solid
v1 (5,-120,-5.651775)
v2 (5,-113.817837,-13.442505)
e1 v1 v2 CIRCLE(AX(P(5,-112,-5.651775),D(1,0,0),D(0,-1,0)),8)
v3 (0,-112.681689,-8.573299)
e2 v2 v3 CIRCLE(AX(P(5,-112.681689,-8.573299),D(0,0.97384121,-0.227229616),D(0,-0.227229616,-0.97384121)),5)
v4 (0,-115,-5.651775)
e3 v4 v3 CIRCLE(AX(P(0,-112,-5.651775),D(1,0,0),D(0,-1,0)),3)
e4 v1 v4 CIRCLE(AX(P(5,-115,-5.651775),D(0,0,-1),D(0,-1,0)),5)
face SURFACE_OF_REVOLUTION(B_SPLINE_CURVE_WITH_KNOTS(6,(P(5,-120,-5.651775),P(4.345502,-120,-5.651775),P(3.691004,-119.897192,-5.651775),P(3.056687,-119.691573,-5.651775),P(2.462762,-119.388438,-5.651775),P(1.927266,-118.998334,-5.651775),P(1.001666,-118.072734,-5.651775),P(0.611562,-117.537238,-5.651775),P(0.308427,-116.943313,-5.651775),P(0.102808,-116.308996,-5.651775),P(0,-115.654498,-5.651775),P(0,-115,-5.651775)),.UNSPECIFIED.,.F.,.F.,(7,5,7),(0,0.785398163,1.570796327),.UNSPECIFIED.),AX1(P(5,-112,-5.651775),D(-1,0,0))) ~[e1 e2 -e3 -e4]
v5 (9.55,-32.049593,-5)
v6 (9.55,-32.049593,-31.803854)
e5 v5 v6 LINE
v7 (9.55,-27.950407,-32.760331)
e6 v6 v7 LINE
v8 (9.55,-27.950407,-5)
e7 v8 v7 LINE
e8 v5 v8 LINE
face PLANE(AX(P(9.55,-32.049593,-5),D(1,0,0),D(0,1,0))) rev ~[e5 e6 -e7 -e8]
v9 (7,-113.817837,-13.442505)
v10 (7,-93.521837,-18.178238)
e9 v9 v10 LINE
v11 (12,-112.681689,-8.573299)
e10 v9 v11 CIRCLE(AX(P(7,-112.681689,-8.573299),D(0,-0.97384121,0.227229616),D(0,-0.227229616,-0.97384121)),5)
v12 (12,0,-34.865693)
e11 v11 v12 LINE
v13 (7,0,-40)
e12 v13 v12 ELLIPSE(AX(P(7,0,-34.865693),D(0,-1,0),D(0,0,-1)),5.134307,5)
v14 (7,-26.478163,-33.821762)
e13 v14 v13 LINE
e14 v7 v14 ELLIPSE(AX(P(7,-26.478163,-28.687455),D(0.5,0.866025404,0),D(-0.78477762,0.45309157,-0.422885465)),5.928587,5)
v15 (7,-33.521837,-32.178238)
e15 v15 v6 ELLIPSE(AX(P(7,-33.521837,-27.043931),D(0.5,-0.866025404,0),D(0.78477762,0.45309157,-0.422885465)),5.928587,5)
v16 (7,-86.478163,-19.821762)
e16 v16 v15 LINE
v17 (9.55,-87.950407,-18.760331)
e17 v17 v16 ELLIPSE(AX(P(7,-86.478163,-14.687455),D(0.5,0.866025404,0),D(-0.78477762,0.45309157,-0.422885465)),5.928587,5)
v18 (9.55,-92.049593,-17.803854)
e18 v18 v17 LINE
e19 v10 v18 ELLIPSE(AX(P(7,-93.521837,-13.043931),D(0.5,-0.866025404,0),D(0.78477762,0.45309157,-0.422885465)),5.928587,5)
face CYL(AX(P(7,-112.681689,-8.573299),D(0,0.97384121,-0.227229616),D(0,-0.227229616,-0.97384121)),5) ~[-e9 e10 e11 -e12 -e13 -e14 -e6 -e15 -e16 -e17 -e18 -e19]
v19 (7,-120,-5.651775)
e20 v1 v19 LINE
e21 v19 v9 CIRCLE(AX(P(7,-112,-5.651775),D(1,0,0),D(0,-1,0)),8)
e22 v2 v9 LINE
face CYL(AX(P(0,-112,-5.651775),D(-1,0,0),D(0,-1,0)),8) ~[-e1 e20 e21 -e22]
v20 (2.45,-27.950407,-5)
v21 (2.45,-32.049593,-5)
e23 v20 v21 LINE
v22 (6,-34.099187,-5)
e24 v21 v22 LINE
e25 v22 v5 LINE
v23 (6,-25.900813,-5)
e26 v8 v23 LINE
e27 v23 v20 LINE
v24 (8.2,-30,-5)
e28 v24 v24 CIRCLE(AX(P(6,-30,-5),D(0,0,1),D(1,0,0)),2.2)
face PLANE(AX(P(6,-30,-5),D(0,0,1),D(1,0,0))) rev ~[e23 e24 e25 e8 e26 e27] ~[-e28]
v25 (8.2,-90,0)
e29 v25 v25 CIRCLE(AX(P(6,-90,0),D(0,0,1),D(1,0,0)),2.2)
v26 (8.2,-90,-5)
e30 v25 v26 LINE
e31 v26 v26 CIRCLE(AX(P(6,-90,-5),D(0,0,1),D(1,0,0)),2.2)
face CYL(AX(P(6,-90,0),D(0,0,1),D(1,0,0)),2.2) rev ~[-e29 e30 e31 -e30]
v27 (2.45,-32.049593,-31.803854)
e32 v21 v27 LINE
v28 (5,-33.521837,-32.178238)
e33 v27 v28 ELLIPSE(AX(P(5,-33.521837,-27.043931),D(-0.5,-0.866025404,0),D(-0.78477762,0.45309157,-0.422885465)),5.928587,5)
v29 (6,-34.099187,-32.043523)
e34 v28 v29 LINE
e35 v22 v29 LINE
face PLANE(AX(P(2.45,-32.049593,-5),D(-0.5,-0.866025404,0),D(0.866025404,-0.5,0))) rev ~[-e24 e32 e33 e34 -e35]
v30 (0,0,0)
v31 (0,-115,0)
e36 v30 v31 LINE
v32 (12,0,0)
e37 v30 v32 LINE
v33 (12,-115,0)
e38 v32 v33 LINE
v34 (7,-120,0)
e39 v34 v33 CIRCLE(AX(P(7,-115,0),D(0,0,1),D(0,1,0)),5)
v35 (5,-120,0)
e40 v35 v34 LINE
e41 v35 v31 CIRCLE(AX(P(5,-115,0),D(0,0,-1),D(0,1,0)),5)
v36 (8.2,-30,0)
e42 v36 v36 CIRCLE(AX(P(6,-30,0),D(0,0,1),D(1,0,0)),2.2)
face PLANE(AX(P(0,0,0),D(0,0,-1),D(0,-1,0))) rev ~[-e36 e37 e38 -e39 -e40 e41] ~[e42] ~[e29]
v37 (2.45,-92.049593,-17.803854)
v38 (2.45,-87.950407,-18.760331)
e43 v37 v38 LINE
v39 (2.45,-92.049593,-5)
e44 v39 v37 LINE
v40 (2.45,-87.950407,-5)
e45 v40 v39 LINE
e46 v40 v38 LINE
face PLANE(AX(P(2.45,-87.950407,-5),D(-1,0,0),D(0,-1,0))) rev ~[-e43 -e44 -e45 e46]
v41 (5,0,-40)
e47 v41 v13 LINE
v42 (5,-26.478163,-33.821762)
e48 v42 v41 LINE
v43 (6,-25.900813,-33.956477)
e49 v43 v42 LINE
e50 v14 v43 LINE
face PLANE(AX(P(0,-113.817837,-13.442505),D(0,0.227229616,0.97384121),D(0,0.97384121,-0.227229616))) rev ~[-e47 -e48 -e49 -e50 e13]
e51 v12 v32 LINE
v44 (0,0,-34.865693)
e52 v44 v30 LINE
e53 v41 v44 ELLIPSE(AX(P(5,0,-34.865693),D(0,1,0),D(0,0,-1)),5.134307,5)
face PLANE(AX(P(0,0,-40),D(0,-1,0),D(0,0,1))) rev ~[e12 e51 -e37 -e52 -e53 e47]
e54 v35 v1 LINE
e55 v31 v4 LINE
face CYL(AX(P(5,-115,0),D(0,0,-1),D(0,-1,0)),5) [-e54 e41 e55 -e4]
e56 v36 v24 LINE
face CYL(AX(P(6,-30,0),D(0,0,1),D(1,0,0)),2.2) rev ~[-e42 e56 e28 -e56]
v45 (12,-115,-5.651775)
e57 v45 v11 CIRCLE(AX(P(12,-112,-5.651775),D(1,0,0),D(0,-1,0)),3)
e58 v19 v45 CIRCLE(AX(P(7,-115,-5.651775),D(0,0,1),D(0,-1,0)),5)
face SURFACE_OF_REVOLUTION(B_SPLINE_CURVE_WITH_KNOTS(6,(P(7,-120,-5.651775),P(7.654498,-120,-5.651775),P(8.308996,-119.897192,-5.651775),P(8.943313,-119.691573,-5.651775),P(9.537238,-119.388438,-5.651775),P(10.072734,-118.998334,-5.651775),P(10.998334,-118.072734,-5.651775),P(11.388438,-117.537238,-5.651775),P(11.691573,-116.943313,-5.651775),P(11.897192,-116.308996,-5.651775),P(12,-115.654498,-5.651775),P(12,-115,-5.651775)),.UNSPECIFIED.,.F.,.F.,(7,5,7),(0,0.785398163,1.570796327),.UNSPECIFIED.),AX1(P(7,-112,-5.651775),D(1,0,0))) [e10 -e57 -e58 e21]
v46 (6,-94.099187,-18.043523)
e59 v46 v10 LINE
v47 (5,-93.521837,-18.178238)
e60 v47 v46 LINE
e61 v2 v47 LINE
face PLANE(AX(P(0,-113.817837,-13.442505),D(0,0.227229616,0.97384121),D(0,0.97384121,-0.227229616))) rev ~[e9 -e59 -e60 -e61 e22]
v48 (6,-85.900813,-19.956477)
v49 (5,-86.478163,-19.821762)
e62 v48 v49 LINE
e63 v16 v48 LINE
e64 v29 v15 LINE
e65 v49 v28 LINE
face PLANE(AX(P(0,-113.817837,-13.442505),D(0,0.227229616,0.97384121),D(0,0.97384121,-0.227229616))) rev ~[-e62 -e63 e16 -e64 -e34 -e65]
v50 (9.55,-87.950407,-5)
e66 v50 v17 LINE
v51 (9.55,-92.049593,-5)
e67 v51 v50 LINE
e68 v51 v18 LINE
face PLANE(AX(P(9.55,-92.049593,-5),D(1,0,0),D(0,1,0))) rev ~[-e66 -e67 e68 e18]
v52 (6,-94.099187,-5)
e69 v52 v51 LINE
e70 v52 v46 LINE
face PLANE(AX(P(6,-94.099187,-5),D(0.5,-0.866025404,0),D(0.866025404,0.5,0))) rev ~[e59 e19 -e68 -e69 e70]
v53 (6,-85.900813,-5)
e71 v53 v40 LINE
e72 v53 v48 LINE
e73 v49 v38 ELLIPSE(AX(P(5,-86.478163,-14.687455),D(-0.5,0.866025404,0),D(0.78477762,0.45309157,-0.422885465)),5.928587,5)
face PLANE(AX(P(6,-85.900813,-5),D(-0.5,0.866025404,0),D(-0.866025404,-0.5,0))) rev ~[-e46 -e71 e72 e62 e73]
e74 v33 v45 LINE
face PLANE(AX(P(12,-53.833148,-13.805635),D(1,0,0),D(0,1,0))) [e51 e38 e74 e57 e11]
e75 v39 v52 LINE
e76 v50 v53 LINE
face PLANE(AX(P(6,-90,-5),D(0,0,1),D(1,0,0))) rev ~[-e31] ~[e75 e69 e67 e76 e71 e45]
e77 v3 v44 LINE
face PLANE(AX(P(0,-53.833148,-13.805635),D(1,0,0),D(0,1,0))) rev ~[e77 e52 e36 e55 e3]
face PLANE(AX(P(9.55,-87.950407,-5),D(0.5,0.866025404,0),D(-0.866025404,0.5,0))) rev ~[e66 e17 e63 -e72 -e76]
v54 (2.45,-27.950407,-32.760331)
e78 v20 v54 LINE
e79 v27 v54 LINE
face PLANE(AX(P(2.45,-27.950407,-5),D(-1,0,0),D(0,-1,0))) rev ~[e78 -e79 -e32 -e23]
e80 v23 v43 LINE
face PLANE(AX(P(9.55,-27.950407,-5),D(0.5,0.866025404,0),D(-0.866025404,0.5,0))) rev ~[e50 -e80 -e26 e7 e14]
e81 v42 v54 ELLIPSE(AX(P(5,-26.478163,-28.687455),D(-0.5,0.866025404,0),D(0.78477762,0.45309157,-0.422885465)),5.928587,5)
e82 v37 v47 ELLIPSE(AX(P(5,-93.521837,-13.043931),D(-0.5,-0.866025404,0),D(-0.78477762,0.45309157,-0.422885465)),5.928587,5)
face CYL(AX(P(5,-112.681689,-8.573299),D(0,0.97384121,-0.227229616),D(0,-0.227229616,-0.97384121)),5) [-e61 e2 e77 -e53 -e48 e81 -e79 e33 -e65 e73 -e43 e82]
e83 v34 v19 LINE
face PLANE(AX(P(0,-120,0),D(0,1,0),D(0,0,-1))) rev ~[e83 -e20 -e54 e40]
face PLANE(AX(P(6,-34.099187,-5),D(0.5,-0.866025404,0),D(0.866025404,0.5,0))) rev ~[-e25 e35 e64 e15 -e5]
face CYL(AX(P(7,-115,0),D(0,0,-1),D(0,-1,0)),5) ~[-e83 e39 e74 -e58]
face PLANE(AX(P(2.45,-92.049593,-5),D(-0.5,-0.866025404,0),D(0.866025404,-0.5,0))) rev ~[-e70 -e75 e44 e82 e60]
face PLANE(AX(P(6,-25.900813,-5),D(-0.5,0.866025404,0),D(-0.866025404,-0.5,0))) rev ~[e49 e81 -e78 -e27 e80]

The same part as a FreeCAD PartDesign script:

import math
import FreeCAD as App
import Part
import Sketcher
Q = App.Units.Quantity


def edges_at(feature, points):
    """Names of the edges that pass closest to the given points."""
    edges = feature.Shape.Edges
    near = lambda p: min(range(len(edges)), key=lambda i: edges[i].distToShape(Part.Vertex(*p))[0])
    return sorted({f"Edge{near(p) + 1}" for p in points})

doc = App.newDocument("Part")
body = doc.addObject("PartDesign::Body", "Body")

sketch1 = body.newObject("Sketcher::SketchObject", "Sketch")
sketch1.AttachmentSupport = (doc.getObject("YZ_Plane"), [""])
sketch1.MapMode = "FlatFace"
sketch1.addGeometry([
    Part.LineSegment(App.Vector(0, -40, 0), App.Vector(0, 0, 0)),
    Part.LineSegment(App.Vector(0, 0, 0), App.Vector(-120, 0, 0)),
    Part.LineSegment(App.Vector(-120, 0, 0), App.Vector(-120, -5.651775, 0)),
    Part.ArcOfCircle(Part.Circle(App.Vector(-112, -5.651775, 0), App.Vector(0, 0, 1), 8), math.radians(180), math.radians(256.865978)),
    Part.LineSegment(App.Vector(-113.817837, -13.442505, 0), App.Vector(0, -40, 0)),
], False)
sketch1.addConstraint([
    Sketcher.Constraint("Coincident", 0, 2, 1, 1),
    Sketcher.Constraint("Coincident", 1, 2, 2, 1),
    Sketcher.Constraint("Tangent", 2, 2, 3, 1),
    Sketcher.Constraint("Tangent", 3, 2, 4, 1),
    Sketcher.Constraint("Coincident", 4, 2, 0, 1),
    Sketcher.Constraint("Vertical", 0),
    Sketcher.Constraint("Horizontal", 1),
    Sketcher.Constraint("Vertical", 2),
    Sketcher.Constraint("Coincident", 0, 2, -1, 1),
    Sketcher.Constraint("Radius", 3, Q("8 mm")),
    Sketcher.Constraint("DistanceX", 1, 2, 1, 1, Q("120 mm")),
    Sketcher.Constraint("DistanceY", 0, 1, 0, 2, Q("40 mm")),
    Sketcher.Constraint("Distance", 4, Q("116.875149 mm")),
])
pad1 = body.newObject("PartDesign::Pad", "Pad")
pad1.Profile = sketch1
pad1.Length = 12
doc.recompute()

fillet = body.newObject("PartDesign::Fillet", "Fillet")
fillet.Base = (pad1, edges_at(pad1, [(0, -56.909, -26.721), (12, -56.909, -26.721)]))
fillet.Radius = 5

sketch2 = body.newObject("Sketcher::SketchObject", "Sketch001")
sketch2.AttachmentSupport = (doc.getObject("XY_Plane"), [""])
sketch2.MapMode = "FlatFace"
sketch2.addGeometry([
    Part.Circle(App.Vector(6, -30, 0), App.Vector(0, 0, 1), 2.2),
    Part.Circle(App.Vector(6, -90, 0), App.Vector(0, 0, 1), 2.2),
], False)
sketch2.addConstraint([
    Sketcher.Constraint("Equal", 0, 1),
    Sketcher.Constraint("Vertical", 0, 3, 1, 3),
    Sketcher.Constraint("Diameter", 0, Q("4.4 mm")),
    Sketcher.Constraint("DistanceX", -1, 1, 0, 3, Q("6 mm")),
    Sketcher.Constraint("DistanceY", 0, 3, -1, 1, Q("30 mm")),
    Sketcher.Constraint("DistanceY", 1, 3, -1, 1, Q("90 mm")),
])
pocket1 = body.newObject("PartDesign::Pocket", "Pocket")
pocket1.Profile = sketch2
pocket1.Type = "ThroughAll"

sketch3 = body.newObject("Sketcher::SketchObject", "Sketch002")
sketch3.AttachmentSupport = (doc.getObject("XY_Plane"), [""])
sketch3.MapMode = "FlatFace"
sketch3.AttachmentOffset = App.Placement(App.Vector(0, 0, -5), App.Rotation())
sketch3.addGeometry([
    Part.LineSegment(App.Vector(2.45, -32.049593, 0), App.Vector(6, -34.099187, 0)),
    Part.LineSegment(App.Vector(6, -34.099187, 0), App.Vector(9.55, -32.049593, 0)),
    Part.LineSegment(App.Vector(9.55, -32.049593, 0), App.Vector(9.55, -27.950407, 0)),
    Part.LineSegment(App.Vector(9.55, -27.950407, 0), App.Vector(6, -25.900813, 0)),
    Part.LineSegment(App.Vector(6, -25.900813, 0), App.Vector(2.45, -27.950407, 0)),
    Part.LineSegment(App.Vector(2.45, -27.950407, 0), App.Vector(2.45, -32.049593, 0)),
    Part.LineSegment(App.Vector(2.45, -92.049593, 0), App.Vector(6, -94.099187, 0)),
    Part.LineSegment(App.Vector(6, -94.099187, 0), App.Vector(9.55, -92.049593, 0)),
    Part.LineSegment(App.Vector(9.55, -92.049593, 0), App.Vector(9.55, -87.950407, 0)),
    Part.LineSegment(App.Vector(9.55, -87.950407, 0), App.Vector(6, -85.900813, 0)),
    Part.LineSegment(App.Vector(6, -85.900813, 0), App.Vector(2.45, -87.950407, 0)),
    Part.LineSegment(App.Vector(2.45, -87.950407, 0), App.Vector(2.45, -92.049593, 0)),
], False)
sketch3.addConstraint([
    Sketcher.Constraint("Coincident", 0, 2, 1, 1),
    Sketcher.Constraint("Coincident", 1, 2, 2, 1),
    Sketcher.Constraint("Coincident", 2, 2, 3, 1),
    Sketcher.Constraint("Coincident", 3, 2, 4, 1),
    Sketcher.Constraint("Coincident", 4, 2, 5, 1),
    Sketcher.Constraint("Coincident", 5, 2, 0, 1),
    Sketcher.Constraint("Coincident", 6, 2, 7, 1),
    Sketcher.Constraint("Coincident", 7, 2, 8, 1),
    Sketcher.Constraint("Coincident", 8, 2, 9, 1),
    Sketcher.Constraint("Coincident", 9, 2, 10, 1),
    Sketcher.Constraint("Coincident", 10, 2, 11, 1),
    Sketcher.Constraint("Coincident", 11, 2, 6, 1),
    Sketcher.Constraint("Vertical", 2),
    Sketcher.Constraint("Vertical", 5),
    Sketcher.Constraint("Vertical", 8),
    Sketcher.Constraint("Vertical", 11),
    Sketcher.Constraint("Parallel", 0, 3),
    Sketcher.Constraint("Parallel", 1, 4),
    Sketcher.Constraint("Parallel", 3, 6),
    Sketcher.Constraint("Parallel", 4, 7),
    Sketcher.Constraint("Parallel", 6, 9),
    Sketcher.Constraint("Parallel", 7, 10),
    Sketcher.Constraint("Horizontal", 2, 2, 4, 2),
    Sketcher.Constraint("Horizontal", 1, 2, 5, 2),
    Sketcher.Constraint("Horizontal", 8, 2, 10, 2),
    Sketcher.Constraint("Horizontal", 7, 2, 11, 2),
    Sketcher.Constraint("Vertical", 0, 2, 3, 2),
    Sketcher.Constraint("Vertical", 3, 2, 6, 2),
    Sketcher.Constraint("Vertical", 2, 2, 7, 2),
    Sketcher.Constraint("Equal", 5, 8),
    Sketcher.Constraint("Angle", 0, Q("-30 deg")),
    Sketcher.Constraint("DistanceX", -1, 1, 0, 2, Q("6 mm")),
    Sketcher.Constraint("DistanceY", 6, 2, 0, 2, Q("60 mm")),
    Sketcher.Constraint("DistanceX", 4, 2, 2, 2, Q("7.1 mm")),
    Sketcher.Constraint("DistanceY", 2, 1, 2, 2, Q("4.099187 mm")),
    Sketcher.Constraint("DistanceY", 0, 2, -1, 1, Q("34.099187 mm")),
])
pocket2 = body.newObject("PartDesign::Pocket", "Pocket001")
pocket2.Profile = sketch3
pocket2.Length = 35.001

doc.recompute()
